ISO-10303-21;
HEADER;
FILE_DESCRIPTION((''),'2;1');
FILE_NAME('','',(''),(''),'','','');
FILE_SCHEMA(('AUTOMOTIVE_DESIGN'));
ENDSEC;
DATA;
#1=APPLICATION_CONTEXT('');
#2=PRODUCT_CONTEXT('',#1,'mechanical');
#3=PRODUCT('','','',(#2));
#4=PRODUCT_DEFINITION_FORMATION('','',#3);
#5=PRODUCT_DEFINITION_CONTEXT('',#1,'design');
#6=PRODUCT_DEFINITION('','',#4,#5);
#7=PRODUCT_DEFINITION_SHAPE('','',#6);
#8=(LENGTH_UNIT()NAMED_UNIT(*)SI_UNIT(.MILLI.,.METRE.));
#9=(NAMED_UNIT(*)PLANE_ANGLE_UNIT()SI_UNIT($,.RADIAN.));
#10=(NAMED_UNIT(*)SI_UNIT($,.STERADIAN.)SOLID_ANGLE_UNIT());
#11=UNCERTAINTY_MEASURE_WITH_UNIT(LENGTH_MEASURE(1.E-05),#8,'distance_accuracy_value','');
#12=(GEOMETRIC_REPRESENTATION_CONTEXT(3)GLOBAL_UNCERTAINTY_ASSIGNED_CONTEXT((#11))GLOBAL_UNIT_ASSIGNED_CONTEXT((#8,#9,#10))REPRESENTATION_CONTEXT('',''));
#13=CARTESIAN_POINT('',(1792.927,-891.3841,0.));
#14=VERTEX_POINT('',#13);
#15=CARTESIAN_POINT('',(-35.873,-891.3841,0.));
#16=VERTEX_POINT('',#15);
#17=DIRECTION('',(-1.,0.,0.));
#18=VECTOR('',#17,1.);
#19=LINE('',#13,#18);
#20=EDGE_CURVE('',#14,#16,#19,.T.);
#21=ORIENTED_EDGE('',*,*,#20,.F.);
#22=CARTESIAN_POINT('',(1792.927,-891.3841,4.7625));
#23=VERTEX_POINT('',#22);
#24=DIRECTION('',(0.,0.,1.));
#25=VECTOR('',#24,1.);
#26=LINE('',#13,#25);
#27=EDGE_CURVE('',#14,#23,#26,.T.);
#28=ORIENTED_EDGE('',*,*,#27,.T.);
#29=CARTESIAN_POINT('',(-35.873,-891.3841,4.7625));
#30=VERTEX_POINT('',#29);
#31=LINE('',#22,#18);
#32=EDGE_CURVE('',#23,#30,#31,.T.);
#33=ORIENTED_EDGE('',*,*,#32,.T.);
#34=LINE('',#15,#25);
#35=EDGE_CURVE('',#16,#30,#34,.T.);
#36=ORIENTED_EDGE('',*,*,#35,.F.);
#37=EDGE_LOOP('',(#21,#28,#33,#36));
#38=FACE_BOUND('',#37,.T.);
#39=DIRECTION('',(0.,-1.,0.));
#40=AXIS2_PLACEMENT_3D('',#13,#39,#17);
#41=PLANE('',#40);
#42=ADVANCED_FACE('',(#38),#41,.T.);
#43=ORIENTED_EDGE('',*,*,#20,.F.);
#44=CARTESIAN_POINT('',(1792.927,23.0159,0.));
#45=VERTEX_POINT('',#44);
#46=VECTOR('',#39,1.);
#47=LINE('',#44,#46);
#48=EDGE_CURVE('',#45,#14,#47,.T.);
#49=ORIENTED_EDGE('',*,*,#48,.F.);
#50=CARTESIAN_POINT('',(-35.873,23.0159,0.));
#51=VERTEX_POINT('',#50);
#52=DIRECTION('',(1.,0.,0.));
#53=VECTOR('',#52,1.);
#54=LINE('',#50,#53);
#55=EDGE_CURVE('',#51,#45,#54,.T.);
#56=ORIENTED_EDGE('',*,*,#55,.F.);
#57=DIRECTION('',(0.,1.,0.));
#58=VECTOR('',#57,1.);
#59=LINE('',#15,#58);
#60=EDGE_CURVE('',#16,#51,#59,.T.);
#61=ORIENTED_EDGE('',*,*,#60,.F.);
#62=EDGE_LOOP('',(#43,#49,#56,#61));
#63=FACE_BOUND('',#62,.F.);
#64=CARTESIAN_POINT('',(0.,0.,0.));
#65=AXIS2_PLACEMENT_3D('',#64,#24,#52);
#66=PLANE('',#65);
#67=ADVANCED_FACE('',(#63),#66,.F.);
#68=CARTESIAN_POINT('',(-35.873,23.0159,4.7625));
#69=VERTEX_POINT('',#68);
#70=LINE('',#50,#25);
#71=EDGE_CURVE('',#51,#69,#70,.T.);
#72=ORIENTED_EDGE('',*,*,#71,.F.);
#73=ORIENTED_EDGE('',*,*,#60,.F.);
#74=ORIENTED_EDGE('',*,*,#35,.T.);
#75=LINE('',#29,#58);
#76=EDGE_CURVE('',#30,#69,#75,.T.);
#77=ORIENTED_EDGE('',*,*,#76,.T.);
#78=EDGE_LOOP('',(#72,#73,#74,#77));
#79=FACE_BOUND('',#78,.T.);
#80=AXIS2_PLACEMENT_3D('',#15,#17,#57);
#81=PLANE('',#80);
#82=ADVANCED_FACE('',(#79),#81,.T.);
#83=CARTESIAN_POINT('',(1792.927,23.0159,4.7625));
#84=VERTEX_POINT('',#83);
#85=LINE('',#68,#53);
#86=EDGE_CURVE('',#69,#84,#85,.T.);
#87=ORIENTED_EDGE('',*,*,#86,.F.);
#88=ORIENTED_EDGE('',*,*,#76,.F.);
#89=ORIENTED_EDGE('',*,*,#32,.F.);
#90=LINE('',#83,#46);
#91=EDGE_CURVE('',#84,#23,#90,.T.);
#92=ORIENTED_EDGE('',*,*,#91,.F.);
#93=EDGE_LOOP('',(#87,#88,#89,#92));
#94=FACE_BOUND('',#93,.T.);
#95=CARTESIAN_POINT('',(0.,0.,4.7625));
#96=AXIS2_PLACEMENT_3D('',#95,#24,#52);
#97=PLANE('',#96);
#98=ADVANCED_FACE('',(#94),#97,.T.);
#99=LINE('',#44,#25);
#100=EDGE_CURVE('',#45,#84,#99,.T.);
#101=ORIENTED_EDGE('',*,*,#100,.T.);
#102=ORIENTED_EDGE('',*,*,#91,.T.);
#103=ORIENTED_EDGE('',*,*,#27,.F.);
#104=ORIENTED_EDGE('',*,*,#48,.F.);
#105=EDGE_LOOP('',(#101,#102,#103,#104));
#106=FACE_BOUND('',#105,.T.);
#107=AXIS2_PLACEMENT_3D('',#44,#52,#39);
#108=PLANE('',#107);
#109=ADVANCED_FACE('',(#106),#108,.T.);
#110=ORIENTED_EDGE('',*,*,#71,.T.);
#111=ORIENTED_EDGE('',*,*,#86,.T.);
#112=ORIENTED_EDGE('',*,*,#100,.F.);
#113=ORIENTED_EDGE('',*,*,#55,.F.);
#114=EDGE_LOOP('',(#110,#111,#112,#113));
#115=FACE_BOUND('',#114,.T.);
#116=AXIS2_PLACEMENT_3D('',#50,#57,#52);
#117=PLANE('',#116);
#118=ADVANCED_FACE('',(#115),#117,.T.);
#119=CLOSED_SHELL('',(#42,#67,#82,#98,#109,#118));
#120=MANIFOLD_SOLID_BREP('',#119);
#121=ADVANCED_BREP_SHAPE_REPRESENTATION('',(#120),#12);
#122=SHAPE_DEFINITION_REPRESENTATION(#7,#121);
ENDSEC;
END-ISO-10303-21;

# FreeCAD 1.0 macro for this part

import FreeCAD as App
import Part
import Sketcher
Q = App.Units.Quantity


def add_polygon(sketch, points):
    """Adds a closed chain of lines whose ends are joined by coincident constraints."""
    first, n = sketch.GeometryCount, len(points)
    for a, b in zip(points, points[1:] + points[:1]):
        sketch.addGeometry(Part.LineSegment(App.Vector(*a, 0), App.Vector(*b, 0)), False)
    for i in range(n):
        sketch.addConstraint(Sketcher.Constraint("Coincident", first + i, 2, first + (i + 1) % n, 1))

doc = App.newDocument("Part")
params = doc.addObject("Spreadsheet::Sheet", "Params")
for row, (alias, value) in enumerate([
    ("sketch1_width", "72 in"),
    ("sketch1_height", "36 in"),
    ("pad1_length", "0.1875 in"),
], start=1):
    params.set(f"A{row}", alias)
    params.set(f"B{row}", "=" + value)
    params.setAlias(f"B{row}", alias)

body = doc.addObject("PartDesign::Body", "Body")

# Sketch on XY plane
sketch1 = body.newObject("Sketcher::SketchObject", "Sketch")
sketch1.AttachmentSupport = (doc.getObject("XY_Plane"), [""])
sketch1.MapMode = "FlatFace"
add_polygon(sketch1, [(1793, 23), (-36, 23), (-36, -891), (1793, -891)])  # lines 0-3
sketch1.addConstraint(Sketcher.Constraint("Horizontal", 0))
sketch1.addConstraint(Sketcher.Constraint("Vertical", 1))
sketch1.addConstraint(Sketcher.Constraint("Horizontal", 2))
sketch1.addConstraint(Sketcher.Constraint("Vertical", 3))
sketch1.addConstraint(Sketcher.Constraint("DistanceX", 0, 2, 0, 1, Q("72 in")))
sketch1.addConstraint(Sketcher.Constraint("DistanceY", 1, 2, 1, 1, Q("36 in")))
sketch1.addConstraint(Sketcher.Constraint("DistanceX", 0, 2, -1, 1, 35.873))
sketch1.addConstraint(Sketcher.Constraint("DistanceY", -1, 1, 0, 2, 23.016))
sketch1.setExpression("Constraints[8]", "Params.sketch1_width")
sketch1.setExpression("Constraints[9]", "Params.sketch1_height")
pad1 = body.newObject("PartDesign::Pad", "Pad")
pad1.Profile = sketch1
pad1.setExpression("Length", "Params.pad1_length")

doc.recompute()
